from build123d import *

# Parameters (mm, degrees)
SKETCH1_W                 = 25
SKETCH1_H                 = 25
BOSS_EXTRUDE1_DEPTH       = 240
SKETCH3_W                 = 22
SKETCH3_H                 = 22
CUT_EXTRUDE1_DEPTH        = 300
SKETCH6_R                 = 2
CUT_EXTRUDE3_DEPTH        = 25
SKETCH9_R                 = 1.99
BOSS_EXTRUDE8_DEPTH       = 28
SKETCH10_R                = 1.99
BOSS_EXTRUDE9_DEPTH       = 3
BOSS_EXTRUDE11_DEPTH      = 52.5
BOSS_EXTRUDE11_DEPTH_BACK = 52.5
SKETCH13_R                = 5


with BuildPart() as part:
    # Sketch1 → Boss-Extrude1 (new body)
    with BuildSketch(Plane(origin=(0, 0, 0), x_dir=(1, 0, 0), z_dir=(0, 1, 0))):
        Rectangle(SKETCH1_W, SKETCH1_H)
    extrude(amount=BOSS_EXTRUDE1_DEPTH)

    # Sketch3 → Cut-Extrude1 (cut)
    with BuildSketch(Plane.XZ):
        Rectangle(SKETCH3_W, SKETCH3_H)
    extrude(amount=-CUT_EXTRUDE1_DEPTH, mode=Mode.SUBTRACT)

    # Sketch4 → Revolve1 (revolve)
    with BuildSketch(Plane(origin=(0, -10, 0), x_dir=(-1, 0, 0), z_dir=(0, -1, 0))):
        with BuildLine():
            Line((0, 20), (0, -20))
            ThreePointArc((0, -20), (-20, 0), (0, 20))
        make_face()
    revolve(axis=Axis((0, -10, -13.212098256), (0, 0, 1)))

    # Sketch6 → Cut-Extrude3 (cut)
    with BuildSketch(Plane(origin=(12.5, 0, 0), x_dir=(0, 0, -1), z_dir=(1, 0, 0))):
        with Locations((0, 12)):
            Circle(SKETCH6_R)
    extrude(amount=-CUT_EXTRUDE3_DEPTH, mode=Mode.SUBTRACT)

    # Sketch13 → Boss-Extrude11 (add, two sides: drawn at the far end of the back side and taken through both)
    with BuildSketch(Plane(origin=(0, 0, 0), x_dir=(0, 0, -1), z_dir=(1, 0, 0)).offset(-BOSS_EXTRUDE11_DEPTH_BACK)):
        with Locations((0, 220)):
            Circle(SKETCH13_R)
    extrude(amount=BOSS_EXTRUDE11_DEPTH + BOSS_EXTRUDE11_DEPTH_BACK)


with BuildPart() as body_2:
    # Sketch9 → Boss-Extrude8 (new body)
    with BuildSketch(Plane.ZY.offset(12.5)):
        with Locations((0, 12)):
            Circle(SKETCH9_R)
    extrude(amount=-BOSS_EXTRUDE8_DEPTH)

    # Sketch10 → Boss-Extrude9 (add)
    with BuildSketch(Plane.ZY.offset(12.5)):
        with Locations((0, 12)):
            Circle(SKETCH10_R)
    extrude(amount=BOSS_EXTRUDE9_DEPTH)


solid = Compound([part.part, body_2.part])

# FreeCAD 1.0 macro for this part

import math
import FreeCAD as App
import Part
import Sketcher

doc = App.newDocument("Part")
body = doc.addObject("PartDesign::Body", "Body")

# Sketch on XZ plane
sketch1 = doc.addObject("Sketcher::SketchObject", "Sketch")
body.addObject(sketch1)
sketch1.AttachmentSupport = (doc.XZ_Plane, [""])
sketch1.MapMode = "FlatFace"
sketch1.addGeometry([
    Part.LineSegment(App.Vector(-12.5, -12.5, 0), App.Vector(-12.5, 12.5, 0)),
    Part.LineSegment(App.Vector(-12.5, 12.5, 0), App.Vector(12.5, 12.5, 0)),
    Part.LineSegment(App.Vector(12.5, 12.5, 0), App.Vector(12.5, -12.5, 0)),
    Part.LineSegment(App.Vector(12.5, -12.5, 0), App.Vector(-12.5, -12.5, 0)),
], False)
sketch1.addConstraint([
    Sketcher.Constraint("Coincident", 0, 2, 1, 1),
    Sketcher.Constraint("Coincident", 1, 2, 2, 1),
    Sketcher.Constraint("Coincident", 2, 2, 3, 1),
    Sketcher.Constraint("Coincident", 3, 2, 0, 1),
    Sketcher.Constraint("Vertical", 0),
    Sketcher.Constraint("Horizontal", 1),
    Sketcher.Constraint("Vertical", 2),
    Sketcher.Constraint("Horizontal", 3),
    Sketcher.Constraint("Symmetric", 0, 2, 2, 2, -1, 1),
    Sketcher.Constraint("Equal", 3, 0),
    Sketcher.Constraint("DistanceX", 1, 1, 1, 2, 25.0),
])
pad1 = doc.addObject("PartDesign::Pad", "Pad")
body.addObject(pad1)
pad1.Profile = sketch1
pad1.Length = 240
pad1.Reversed = True

# Sketch on XZ plane
sketch2 = doc.addObject("Sketcher::SketchObject", "Sketch001")
body.addObject(sketch2)
sketch2.AttachmentSupport = (doc.XZ_Plane, [""])
sketch2.MapMode = "FlatFace"
sketch2.addGeometry([
    Part.LineSegment(App.Vector(-11, 11, 0), App.Vector(-11, -11, 0)),
    Part.LineSegment(App.Vector(-11, -11, 0), App.Vector(11, -11, 0)),
    Part.LineSegment(App.Vector(11, -11, 0), App.Vector(11, 11, 0)),
    Part.LineSegment(App.Vector(11, 11, 0), App.Vector(-11, 11, 0)),
], False)
sketch2.addConstraint([
    Sketcher.Constraint("Coincident", 0, 2, 1, 1),
    Sketcher.Constraint("Coincident", 1, 2, 2, 1),
    Sketcher.Constraint("Coincident", 2, 2, 3, 1),
    Sketcher.Constraint("Coincident", 3, 2, 0, 1),
    Sketcher.Constraint("Vertical", 0),
    Sketcher.Constraint("Horizontal", 1),
    Sketcher.Constraint("Vertical", 2),
    Sketcher.Constraint("Horizontal", 3),
    Sketcher.Constraint("Symmetric", 0, 2, 2, 2, -1, 1),
    Sketcher.Constraint("Equal", 3, 0),
    Sketcher.Constraint("DistanceX", 1, 1, 1, 2, 22.0),
])
pocket1 = doc.addObject("PartDesign::Pocket", "Pocket")
body.addObject(pocket1)
pocket1.Profile = sketch2
pocket1.Length = 300

# Sketch on XZ plane
sketch3 = doc.addObject("Sketcher::SketchObject", "Sketch002")
body.addObject(sketch3)
sketch3.AttachmentSupport = (doc.XZ_Plane, [""])
sketch3.MapMode = "FlatFace"
sketch3.AttachmentOffset = App.Placement(App.Vector(0, 0, 10), App.Rotation())
sketch3.addGeometry([
    Part.LineSegment(App.Vector(0, 20, 0), App.Vector(0, -20, 0)),
    Part.ArcOfCircle(Part.Circle(App.Vector(0, 0, 0), App.Vector(0, 0, 1), 20), math.radians(-90), math.radians(90)),
], False)
sketch3.addConstraint([
    Sketcher.Constraint("Coincident", 0, 1, 1, 2),
    Sketcher.Constraint("Coincident", 1, 1, 0, 2),
    Sketcher.Constraint("Vertical", 0),
    Sketcher.Constraint("Coincident", 1, 3, -1, 1),
    Sketcher.Constraint("PointOnObject", 0, 1, -2),
    Sketcher.Constraint("Radius", 1, 20.0),
])
revolution = doc.addObject("PartDesign::Revolution", "Revolution")
body.addObject(revolution)
revolution.Profile = sketch3
revolution.ReferenceAxis = (sketch3, ["V_Axis"])
revolution.Angle = 360

# Sketch on YZ plane
sketch4 = doc.addObject("Sketcher::SketchObject", "Sketch003")
body.addObject(sketch4)
sketch4.AttachmentSupport = (doc.YZ_Plane, [""])
sketch4.MapMode = "FlatFace"
sketch4.AttachmentOffset = App.Placement(App.Vector(0, 0, 12.5), App.Rotation())
sketch4.addGeometry(Part.Circle(App.Vector(12, 0, 0), App.Vector(0, 0, 1), 2), False)
sketch4.addConstraint([
    Sketcher.Constraint("PointOnObject", 0, 3, -1),
    Sketcher.Constraint("Diameter", 0, 4.0),
    Sketcher.Constraint("DistanceX", -1, 1, 0, 3, 12.0),
])
pocket2 = doc.addObject("PartDesign::Pocket", "Pocket001")
body.addObject(pocket2)
pocket2.Profile = sketch4
pocket2.Length = 25

# Sketch on YZ plane
sketch5 = doc.addObject("Sketcher::SketchObject", "Sketch004")
body.addObject(sketch5)
sketch5.AttachmentSupport = (doc.YZ_Plane, [""])
sketch5.MapMode = "FlatFace"
sketch5.addGeometry(Part.Circle(App.Vector(220, 0, 0), App.Vector(0, 0, 1), 5), False)
sketch5.addConstraint([
    Sketcher.Constraint("PointOnObject", 0, 3, -1),
    Sketcher.Constraint("Diameter", 0, 10.0),
    Sketcher.Constraint("DistanceX", -1, 1, 0, 3, 220.0),
])
pad2 = doc.addObject("PartDesign::Pad", "Pad001")
body.addObject(pad2)
pad2.Profile = sketch5
pad2.Type = "TwoLengths"
pad2.Length = 52.5
pad2.Length2 = 52.5
body2 = doc.addObject("PartDesign::Body", "Body001")

# Sketch on YZ plane
sketch6 = doc.addObject("Sketcher::SketchObject", "Sketch005")
body2.addObject(sketch6)
sketch6.AttachmentSupport = (doc.getObject("YZ_Plane001"), [""])
sketch6.MapMode = "FlatFace"
sketch6.AttachmentOffset = App.Placement(App.Vector(0, 0, -12.5), App.Rotation())
sketch6.addGeometry(Part.Circle(App.Vector(12, 0, 0), App.Vector(0, 0, 1), 1.99), False)
sketch6.addConstraint([
    Sketcher.Constraint("PointOnObject", 0, 3, -1),
    Sketcher.Constraint("Diameter", 0, 3.98),
    Sketcher.Constraint("DistanceX", -1, 1, 0, 3, 12.0),
])
pad3 = doc.addObject("PartDesign::Pad", "Pad002")
body2.addObject(pad3)
pad3.Profile = sketch6
pad3.Length = 28

# Sketch on YZ plane
sketch7 = doc.addObject("Sketcher::SketchObject", "Sketch006")
body2.addObject(sketch7)
sketch7.AttachmentSupport = (doc.getObject("YZ_Plane001"), [""])
sketch7.MapMode = "FlatFace"
sketch7.AttachmentOffset = App.Placement(App.Vector(0, 0, -12.5), App.Rotation())
sketch7.addGeometry(Part.Circle(App.Vector(12, 0, 0), App.Vector(0, 0, 1), 1.99), False)
sketch7.addConstraint([
    Sketcher.Constraint("PointOnObject", 0, 3, -1),
    Sketcher.Constraint("Diameter", 0, 3.98),
    Sketcher.Constraint("DistanceX", -1, 1, 0, 3, 12.0),
])
pad4 = doc.addObject("PartDesign::Pad", "Pad003")
body2.addObject(pad4)
pad4.Profile = sketch7
pad4.Length = 3
pad4.Reversed = True

doc.recompute()
